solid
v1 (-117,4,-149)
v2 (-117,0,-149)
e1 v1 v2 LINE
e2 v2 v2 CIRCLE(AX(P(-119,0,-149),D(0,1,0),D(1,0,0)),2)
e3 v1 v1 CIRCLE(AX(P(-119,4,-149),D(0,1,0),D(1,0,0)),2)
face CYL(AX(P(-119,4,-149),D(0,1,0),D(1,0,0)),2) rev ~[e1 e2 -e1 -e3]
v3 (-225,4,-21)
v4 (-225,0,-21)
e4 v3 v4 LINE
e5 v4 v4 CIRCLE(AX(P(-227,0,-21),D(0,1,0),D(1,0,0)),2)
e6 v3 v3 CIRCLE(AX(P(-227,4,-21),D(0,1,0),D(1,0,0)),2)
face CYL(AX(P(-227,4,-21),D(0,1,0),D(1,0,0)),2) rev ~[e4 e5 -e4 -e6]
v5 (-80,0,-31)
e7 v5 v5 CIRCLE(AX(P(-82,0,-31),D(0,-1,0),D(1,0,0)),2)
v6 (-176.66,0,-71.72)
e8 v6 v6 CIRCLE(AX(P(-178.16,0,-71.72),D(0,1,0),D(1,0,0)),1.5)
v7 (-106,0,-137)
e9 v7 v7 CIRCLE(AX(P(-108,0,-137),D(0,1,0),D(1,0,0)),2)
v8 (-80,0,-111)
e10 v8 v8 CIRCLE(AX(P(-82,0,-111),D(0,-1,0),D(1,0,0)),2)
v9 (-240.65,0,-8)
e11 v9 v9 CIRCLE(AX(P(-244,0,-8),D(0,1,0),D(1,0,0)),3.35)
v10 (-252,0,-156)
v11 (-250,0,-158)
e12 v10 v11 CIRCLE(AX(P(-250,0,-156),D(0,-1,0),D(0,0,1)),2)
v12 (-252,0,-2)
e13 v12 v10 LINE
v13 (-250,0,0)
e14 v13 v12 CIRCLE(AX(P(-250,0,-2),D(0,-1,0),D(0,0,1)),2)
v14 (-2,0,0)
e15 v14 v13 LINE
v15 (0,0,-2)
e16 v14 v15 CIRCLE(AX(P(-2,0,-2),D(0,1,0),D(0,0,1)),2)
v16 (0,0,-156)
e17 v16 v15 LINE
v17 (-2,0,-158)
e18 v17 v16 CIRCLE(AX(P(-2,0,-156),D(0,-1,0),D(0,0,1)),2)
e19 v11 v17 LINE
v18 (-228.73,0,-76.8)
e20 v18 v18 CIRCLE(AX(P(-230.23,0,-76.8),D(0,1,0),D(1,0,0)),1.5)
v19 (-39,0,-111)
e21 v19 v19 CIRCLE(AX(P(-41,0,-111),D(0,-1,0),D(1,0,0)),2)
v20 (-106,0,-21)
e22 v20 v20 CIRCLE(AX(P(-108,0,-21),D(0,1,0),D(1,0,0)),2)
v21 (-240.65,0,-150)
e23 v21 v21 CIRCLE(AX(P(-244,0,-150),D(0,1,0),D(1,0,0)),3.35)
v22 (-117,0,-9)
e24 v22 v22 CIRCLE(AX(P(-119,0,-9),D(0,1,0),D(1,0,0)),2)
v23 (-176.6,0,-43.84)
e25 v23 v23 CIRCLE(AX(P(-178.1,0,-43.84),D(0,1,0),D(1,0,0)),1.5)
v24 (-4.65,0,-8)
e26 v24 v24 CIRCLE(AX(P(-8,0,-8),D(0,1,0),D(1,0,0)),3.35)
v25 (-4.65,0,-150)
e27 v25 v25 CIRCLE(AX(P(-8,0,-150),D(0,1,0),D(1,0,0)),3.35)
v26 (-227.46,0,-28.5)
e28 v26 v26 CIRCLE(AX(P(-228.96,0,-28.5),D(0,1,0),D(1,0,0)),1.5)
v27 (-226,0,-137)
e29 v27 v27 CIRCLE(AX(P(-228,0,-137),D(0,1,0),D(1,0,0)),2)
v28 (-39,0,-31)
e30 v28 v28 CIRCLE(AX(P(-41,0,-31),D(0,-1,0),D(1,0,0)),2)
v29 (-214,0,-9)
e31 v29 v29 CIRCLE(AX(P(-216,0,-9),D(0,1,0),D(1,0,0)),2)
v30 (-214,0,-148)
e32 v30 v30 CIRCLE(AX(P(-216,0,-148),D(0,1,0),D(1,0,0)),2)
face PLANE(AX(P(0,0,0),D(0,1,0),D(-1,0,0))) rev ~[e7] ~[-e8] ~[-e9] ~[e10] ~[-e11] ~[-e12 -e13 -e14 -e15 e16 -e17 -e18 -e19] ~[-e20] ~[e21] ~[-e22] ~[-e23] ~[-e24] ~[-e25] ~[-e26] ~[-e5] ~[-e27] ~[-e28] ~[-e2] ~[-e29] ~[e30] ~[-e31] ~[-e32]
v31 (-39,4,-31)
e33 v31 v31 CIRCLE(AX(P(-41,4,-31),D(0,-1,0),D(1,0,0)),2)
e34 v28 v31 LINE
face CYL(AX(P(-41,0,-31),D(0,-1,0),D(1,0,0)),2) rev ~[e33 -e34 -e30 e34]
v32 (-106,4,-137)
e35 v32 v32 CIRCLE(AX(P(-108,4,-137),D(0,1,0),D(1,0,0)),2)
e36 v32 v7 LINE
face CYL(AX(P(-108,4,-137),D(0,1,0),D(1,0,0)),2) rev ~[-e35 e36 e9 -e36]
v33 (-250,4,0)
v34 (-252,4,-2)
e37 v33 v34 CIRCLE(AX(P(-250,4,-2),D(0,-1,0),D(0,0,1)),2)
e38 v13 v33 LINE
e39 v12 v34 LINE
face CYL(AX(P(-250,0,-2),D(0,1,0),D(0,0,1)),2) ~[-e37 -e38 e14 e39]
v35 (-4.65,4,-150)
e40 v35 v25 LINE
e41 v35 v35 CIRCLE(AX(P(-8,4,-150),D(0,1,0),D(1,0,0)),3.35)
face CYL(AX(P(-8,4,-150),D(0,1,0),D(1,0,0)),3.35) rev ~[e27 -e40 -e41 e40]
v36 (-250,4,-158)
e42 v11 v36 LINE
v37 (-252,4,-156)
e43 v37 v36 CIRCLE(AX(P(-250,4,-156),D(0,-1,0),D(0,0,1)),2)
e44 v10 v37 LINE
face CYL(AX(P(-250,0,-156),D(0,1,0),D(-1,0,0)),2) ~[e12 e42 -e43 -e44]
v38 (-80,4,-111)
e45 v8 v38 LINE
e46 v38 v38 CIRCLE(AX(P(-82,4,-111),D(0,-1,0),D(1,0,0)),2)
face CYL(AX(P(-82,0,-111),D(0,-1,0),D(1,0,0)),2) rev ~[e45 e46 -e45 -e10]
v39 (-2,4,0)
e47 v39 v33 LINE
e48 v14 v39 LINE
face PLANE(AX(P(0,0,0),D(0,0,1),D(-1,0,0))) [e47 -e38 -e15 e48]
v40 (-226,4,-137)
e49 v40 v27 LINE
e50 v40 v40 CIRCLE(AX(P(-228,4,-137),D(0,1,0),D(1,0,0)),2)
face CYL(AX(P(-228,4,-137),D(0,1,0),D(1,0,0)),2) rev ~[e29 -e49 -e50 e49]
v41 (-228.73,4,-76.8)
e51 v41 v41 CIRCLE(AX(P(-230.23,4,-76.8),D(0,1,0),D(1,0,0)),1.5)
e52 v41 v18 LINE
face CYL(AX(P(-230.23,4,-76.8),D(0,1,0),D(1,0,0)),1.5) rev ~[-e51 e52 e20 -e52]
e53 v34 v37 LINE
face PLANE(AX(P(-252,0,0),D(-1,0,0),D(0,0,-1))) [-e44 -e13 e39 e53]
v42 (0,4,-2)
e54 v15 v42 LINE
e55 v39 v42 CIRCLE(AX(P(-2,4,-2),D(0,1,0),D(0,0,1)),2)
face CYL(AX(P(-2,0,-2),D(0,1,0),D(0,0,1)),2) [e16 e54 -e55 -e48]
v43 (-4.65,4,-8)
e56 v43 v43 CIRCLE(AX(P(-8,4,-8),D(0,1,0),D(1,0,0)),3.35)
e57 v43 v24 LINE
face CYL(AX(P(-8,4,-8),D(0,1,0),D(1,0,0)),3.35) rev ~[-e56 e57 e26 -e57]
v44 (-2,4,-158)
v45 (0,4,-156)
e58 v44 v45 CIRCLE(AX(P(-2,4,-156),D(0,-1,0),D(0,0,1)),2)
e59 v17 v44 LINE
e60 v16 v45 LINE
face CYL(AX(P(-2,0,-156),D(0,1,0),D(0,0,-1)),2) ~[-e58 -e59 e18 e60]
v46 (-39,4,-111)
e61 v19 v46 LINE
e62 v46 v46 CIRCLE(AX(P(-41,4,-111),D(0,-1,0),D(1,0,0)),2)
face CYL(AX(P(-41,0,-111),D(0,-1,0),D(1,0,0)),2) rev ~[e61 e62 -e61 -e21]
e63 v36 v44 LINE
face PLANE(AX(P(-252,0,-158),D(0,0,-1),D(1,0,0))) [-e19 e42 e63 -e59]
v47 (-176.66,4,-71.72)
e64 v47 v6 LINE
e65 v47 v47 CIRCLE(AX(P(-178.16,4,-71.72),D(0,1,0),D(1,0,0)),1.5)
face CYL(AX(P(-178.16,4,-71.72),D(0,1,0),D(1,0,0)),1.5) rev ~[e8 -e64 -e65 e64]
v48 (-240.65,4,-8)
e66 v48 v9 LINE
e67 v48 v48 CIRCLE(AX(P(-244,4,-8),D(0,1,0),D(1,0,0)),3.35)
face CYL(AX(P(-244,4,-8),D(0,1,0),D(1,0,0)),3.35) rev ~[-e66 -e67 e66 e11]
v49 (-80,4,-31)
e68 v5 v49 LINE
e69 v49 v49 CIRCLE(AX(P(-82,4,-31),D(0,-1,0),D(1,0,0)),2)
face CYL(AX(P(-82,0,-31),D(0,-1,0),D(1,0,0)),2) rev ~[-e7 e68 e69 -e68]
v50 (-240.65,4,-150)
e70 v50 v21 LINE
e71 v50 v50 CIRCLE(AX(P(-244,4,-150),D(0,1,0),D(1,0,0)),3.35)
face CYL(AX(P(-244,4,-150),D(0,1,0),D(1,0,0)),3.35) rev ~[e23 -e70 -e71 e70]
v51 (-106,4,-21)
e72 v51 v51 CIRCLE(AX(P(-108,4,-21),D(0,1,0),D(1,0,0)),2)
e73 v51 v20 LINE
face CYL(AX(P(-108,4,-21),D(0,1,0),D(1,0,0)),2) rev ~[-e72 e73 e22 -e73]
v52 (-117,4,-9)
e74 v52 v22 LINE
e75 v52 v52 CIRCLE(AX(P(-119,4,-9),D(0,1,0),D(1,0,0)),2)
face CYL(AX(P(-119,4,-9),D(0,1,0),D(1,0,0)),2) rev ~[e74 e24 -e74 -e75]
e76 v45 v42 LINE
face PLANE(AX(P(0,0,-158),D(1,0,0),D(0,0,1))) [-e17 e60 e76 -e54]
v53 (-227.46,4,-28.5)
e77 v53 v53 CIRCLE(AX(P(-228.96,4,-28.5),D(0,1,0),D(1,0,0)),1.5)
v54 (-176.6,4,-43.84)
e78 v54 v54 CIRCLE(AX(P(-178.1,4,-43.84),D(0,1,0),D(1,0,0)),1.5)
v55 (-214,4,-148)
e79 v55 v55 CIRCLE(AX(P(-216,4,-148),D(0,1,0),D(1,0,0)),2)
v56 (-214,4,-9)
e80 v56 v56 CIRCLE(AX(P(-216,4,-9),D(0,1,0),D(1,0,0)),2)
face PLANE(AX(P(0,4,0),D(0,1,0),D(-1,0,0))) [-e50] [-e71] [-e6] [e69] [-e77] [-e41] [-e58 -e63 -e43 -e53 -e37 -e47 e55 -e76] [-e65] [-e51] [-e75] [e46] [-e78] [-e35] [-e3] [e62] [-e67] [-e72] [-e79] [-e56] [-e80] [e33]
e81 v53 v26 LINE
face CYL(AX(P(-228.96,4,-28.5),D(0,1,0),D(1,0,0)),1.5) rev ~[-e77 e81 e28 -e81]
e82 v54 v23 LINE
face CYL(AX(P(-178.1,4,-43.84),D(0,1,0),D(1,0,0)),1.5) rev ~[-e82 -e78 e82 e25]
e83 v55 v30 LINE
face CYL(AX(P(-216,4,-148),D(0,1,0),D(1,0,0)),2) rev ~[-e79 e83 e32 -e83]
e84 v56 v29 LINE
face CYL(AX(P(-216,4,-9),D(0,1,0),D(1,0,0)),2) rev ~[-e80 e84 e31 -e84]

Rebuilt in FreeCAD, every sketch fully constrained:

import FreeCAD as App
import Part
import Sketcher
from FreeCAD import Vector
Q = App.Units.Quantity


def edges_at(feature, points):
    """Names of the edges that pass closest to the given points."""
    edges = feature.Shape.Edges
    near = lambda p: min(range(len(edges)), key=lambda i: edges[i].distToShape(Part.Vertex(*p))[0])
    return sorted({f"Edge{near(p) + 1}" for p in points})


def add_polygon(sketch, points):
    """Adds a closed chain of lines whose ends are joined by coincident constraints."""
    first, n = sketch.GeometryCount, len(points)
    for a, b in zip(points, points[1:] + points[:1]):
        sketch.addGeometry(Part.LineSegment(App.Vector(*a, 0), App.Vector(*b, 0)), False)
    for i in range(n):
        sketch.addConstraint(Sketcher.Constraint("Coincident", first + i, 2, first + (i + 1) % n, 1))

doc = App.newDocument("Part")
body = doc.addObject("PartDesign::Body", "Body")

# Sketch on XZ plane
sketch1 = body.newObject("Sketcher::SketchObject", "Sketch")
sketch1.AttachmentSupport = (doc.getObject("XZ_Plane"), [""])
sketch1.MapMode = "FlatFace"
add_polygon(sketch1, [(-252, 0), (0, 0), (0, -158), (-252, -158)])  # lines 0-3
sketch1.addConstraint([
    Sketcher.Constraint("Horizontal", 0),
    Sketcher.Constraint("Vertical", 1),
    Sketcher.Constraint("Horizontal", 2),
    Sketcher.Constraint("Vertical", 3),
    Sketcher.Constraint("Coincident", 0, 2, -1, 1),
    Sketcher.Constraint("DistanceX", 0, 1, 0, 2, Q("252 mm")),
    Sketcher.Constraint("DistanceY", 1, 2, 1, 1, Q("158 mm")),
])
pad1 = body.newObject("PartDesign::Pad", "Pad")
pad1.Profile = sketch1
pad1.Length = 4
pad1.Reversed = True
doc.recompute()

fillet = body.newObject("PartDesign::Fillet", "Fillet")
fillet.Base = (pad1, edges_at(pad1, [
    (0, 2, 0),
    (0, 2, -158),
    (-252, 2, 0),
    (-252, 2, -158),
]))
fillet.Radius = 2

# Sketch on XZ plane
sketch2 = body.newObject("Sketcher::SketchObject", "Sketch001")
sketch2.AttachmentSupport = (doc.getObject("XZ_Plane"), [""])
sketch2.MapMode = "FlatFace"
sketch2.AttachmentOffset = App.Placement(Vector(0, 0, -4), App.Rotation())
sketch2.addGeometry([
    Part.Circle(Vector(-244, -150, 0), Vector(0, 0, 1), 3.35),
    Part.Circle(Vector(-244, -8, 0), Vector(0, 0, 1), 3.35),
    Part.Circle(Vector(-8, -150, 0), Vector(0, 0, 1), 3.35),
    Part.Circle(Vector(-8, -8, 0), Vector(0, 0, 1), 3.35),
], False)
sketch2.addConstraint([
    Sketcher.Constraint("Equal", 0, 1),
    Sketcher.Constraint("Equal", 1, 2),
    Sketcher.Constraint("Equal", 2, 3),
    Sketcher.Constraint("Horizontal", 0, 3, 2, 3),
    Sketcher.Constraint("Horizontal", 1, 3, 3, 3),
    Sketcher.Constraint("Vertical", 0, 3, 1, 3),
    Sketcher.Constraint("Vertical", 2, 3, 3, 3),
    Sketcher.Constraint("Diameter", 0, Q("6.7 mm")),
    Sketcher.Constraint("DistanceY", 1, 3, -1, 1, Q("8 mm")),
    Sketcher.Constraint("DistanceX", 2, 3, -1, 1, Q("8 mm")),
    Sketcher.Constraint("DistanceX", 0, 3, -1, 1, Q("244 mm")),
    Sketcher.Constraint("DistanceY", 0, 3, -1, 1, Q("150 mm")),
])
pocket1 = body.newObject("PartDesign::Pocket", "Pocket")
pocket1.Profile = sketch2
pocket1.Length = 10
pocket1.Reversed = True

# Sketch on XZ plane
sketch3 = body.newObject("Sketcher::SketchObject", "Sketch002")
sketch3.AttachmentSupport = (doc.getObject("XZ_Plane"), [""])
sketch3.MapMode = "FlatFace"
sketch3.addGeometry([
    Part.Circle(Vector(-41, -31, 0), Vector(0, 0, 1), 2),
    Part.Circle(Vector(-82, -111, 0), Vector(0, 0, 1), 2),
    Part.Circle(Vector(-41, -111, 0), Vector(0, 0, 1), 2),
    Part.Circle(Vector(-82, -31, 0), Vector(0, 0, 1), 2),
], False)
sketch3.addConstraint([
    Sketcher.Constraint("Equal", 0, 1),
    Sketcher.Constraint("Equal", 1, 2),
    Sketcher.Constraint("Equal", 2, 3),
    Sketcher.Constraint("Horizontal", 1, 3, 2, 3),
    Sketcher.Constraint("Horizontal", 0, 3, 3, 3),
    Sketcher.Constraint("Vertical", 0, 3, 2, 3),
    Sketcher.Constraint("Vertical", 1, 3, 3, 3),
    Sketcher.Constraint("Diameter", 0, Q("4 mm")),
    Sketcher.Constraint("DistanceX", 0, 3, -1, 1, Q("41 mm")),
    Sketcher.Constraint("DistanceY", 0, 3, -1, 1, Q("31 mm")),
    Sketcher.Constraint("DistanceX", 1, 3, -1, 1, Q("82 mm")),
    Sketcher.Constraint("DistanceY", 1, 3, -1, 1, Q("111 mm")),
])
pocket2 = body.newObject("PartDesign::Pocket", "Pocket001")
pocket2.Profile = sketch3
pocket2.Length = 10

# Sketch on XZ plane
sketch4 = body.newObject("Sketcher::SketchObject", "Sketch003")
sketch4.AttachmentSupport = (doc.getObject("XZ_Plane"), [""])
sketch4.MapMode = "FlatFace"
sketch4.AttachmentOffset = App.Placement(Vector(0, 0, -4), App.Rotation())
sketch4.addGeometry([
    Part.Circle(Vector(-216, -148, 0), Vector(0, 0, 1), 2),  # 0
    Part.Circle(Vector(-108, -137, 0), Vector(0, 0, 1), 2),  # 1
    Part.Circle(Vector(-119, -149, 0), Vector(0, 0, 1), 2),  # 2
    Part.Circle(Vector(-228, -137, 0), Vector(0, 0, 1), 2),  # 3
    Part.Circle(Vector(-227, -21, 0), Vector(0, 0, 1), 2),  # 4
    Part.Circle(Vector(-216, -9, 0), Vector(0, 0, 1), 2),  # 5
    Part.Circle(Vector(-108, -21, 0), Vector(0, 0, 1), 2),  # 6
    Part.Circle(Vector(-119, -9, 0), Vector(0, 0, 1), 2),  # 7
], False)
sketch4.addConstraint([
    Sketcher.Constraint("Equal", 0, 1),
    Sketcher.Constraint("Equal", 1, 2),
    Sketcher.Constraint("Equal", 2, 3),
    Sketcher.Constraint("Equal", 3, 4),
    Sketcher.Constraint("Equal", 4, 5),
    Sketcher.Constraint("Equal", 5, 6),
    Sketcher.Constraint("Equal", 6, 7),
    Sketcher.Constraint("Horizontal", 1, 3, 3, 3),
    Sketcher.Constraint("Horizontal", 4, 3, 6, 3),
    Sketcher.Constraint("Horizontal", 5, 3, 7, 3),
    Sketcher.Constraint("Vertical", 0, 3, 5, 3),
    Sketcher.Constraint("Vertical", 1, 3, 6, 3),
    Sketcher.Constraint("Vertical", 2, 3, 7, 3),
    Sketcher.Constraint("Diameter", 0, Q("4 mm")),
    Sketcher.Constraint("DistanceX", 0, 3, -1, 1, Q("216 mm")),
    Sketcher.Constraint("DistanceY", 0, 3, -1, 1, Q("148 mm")),
    Sketcher.Constraint("DistanceX", 1, 3, -1, 1, Q("108 mm")),
    Sketcher.Constraint("DistanceY", 1, 3, -1, 1, Q("137 mm")),
    Sketcher.Constraint("DistanceX", 2, 3, -1, 1, Q("119 mm")),
    Sketcher.Constraint("DistanceY", 2, 3, -1, 1, Q("149 mm")),
    Sketcher.Constraint("DistanceX", 3, 3, -1, 1, Q("228 mm")),
    Sketcher.Constraint("DistanceX", 4, 3, -1, 1, Q("227 mm")),
    Sketcher.Constraint("DistanceY", 4, 3, -1, 1, Q("21 mm")),
    Sketcher.Constraint("DistanceY", 5, 3, -1, 1, Q("9 mm")),
])
pocket3 = body.newObject("PartDesign::Pocket", "Pocket002")
pocket3.Profile = sketch4
pocket3.Length = 10
pocket3.Reversed = True

# Sketch on XZ plane
sketch5 = body.newObject("Sketcher::SketchObject", "Sketch004")
sketch5.AttachmentSupport = (doc.getObject("XZ_Plane"), [""])
sketch5.MapMode = "FlatFace"
sketch5.AttachmentOffset = App.Placement(Vector(0, 0, -4), App.Rotation())
sketch5.addGeometry([
    Part.Circle(Vector(-178.16, -71.72, 0), Vector(0, 0, 1), 1.5),
    Part.Circle(Vector(-178.1, -43.84, 0), Vector(0, 0, 1), 1.5),
    Part.Circle(Vector(-228.96, -28.5, 0), Vector(0, 0, 1), 1.5),
    Part.Circle(Vector(-230.23, -76.8, 0), Vector(0, 0, 1), 1.5),
], False)
sketch5.addConstraint([
    Sketcher.Constraint("Equal", 0, 1),
    Sketcher.Constraint("Equal", 1, 2),
    Sketcher.Constraint("Equal", 2, 3),
    Sketcher.Constraint("Diameter", 0, Q("3 mm")),
    Sketcher.Constraint("DistanceX", 1, 3, -1, 1, Q("178.1 mm")),
    Sketcher.Constraint("DistanceY", 2, 3, -1, 1, Q("28.5 mm")),
    Sketcher.Constraint("DistanceY", 3, 3, -1, 1, Q("76.8 mm")),
    Sketcher.Constraint("DistanceX", 2, 3, 0, 3, Q("50.8 mm")),
    Sketcher.Constraint("DistanceX", 0, 3, -1, 1, Q("178.16 mm")),
    Sketcher.Constraint("DistanceY", 0, 3, -1, 1, Q("71.72 mm")),
    Sketcher.Constraint("DistanceY", 1, 3, -1, 1, Q("43.84 mm")),
    Sketcher.Constraint("DistanceX", 3, 3, -1, 1, Q("230.23 mm")),
])
pocket4 = body.newObject("PartDesign::Pocket", "Pocket003")
pocket4.Profile = sketch5
pocket4.Length = 10
pocket4.Reversed = True

doc.recompute()
